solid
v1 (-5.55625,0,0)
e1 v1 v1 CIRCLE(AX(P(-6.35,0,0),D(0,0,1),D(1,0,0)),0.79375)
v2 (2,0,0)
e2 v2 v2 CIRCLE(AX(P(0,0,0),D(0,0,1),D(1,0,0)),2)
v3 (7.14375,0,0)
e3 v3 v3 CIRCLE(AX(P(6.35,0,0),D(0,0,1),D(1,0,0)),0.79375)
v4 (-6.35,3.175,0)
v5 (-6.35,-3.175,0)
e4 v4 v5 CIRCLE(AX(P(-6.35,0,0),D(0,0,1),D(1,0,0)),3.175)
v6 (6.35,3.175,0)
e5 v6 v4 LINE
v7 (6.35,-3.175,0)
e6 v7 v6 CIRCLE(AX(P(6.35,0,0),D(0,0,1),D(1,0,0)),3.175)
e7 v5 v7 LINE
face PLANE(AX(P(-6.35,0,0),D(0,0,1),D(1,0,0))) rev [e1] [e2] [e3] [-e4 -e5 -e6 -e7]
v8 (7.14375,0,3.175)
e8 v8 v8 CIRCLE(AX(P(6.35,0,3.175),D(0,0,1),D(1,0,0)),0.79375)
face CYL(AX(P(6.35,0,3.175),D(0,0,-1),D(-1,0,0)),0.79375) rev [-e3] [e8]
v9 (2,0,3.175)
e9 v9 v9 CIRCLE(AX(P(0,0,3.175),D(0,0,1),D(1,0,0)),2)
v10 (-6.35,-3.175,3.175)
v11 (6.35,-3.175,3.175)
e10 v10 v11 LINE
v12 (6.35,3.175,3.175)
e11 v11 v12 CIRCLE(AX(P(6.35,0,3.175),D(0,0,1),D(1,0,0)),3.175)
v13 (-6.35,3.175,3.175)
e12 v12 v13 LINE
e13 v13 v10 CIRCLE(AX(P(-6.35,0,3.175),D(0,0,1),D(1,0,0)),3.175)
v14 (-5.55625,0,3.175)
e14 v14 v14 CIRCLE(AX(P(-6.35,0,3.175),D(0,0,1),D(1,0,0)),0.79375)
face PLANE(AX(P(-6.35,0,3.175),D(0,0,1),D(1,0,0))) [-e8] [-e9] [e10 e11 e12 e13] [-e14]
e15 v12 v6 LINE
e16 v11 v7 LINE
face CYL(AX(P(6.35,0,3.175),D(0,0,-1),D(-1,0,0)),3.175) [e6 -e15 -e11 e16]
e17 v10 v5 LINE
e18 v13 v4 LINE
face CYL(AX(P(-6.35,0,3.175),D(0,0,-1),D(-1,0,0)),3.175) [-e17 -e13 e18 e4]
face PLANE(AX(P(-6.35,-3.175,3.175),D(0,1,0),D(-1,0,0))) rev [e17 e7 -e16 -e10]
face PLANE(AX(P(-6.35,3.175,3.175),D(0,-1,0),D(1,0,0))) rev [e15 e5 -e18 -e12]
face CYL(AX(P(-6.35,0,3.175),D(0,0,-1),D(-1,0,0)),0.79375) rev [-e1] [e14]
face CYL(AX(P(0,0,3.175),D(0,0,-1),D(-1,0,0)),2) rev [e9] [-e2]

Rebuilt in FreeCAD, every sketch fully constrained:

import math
import FreeCAD as App
import Part
import Sketcher

V = App.Vector
Q = App.Units.Quantity

doc = App.newDocument("Part")
body = doc.addObject("PartDesign::Body", "Body")

# Sketch on XY plane
sketch1 = body.newObject("Sketcher::SketchObject", "Sketch")
sketch1.AttachmentSupport = (doc.getObject("XY_Plane"), [""])
sketch1.MapMode = "FlatFace"
sketch1.addGeometry(Part.LineSegment(V(6.3, 3.2, 0), V(-6.3, 3.2, 0)), False)
sketch1.addGeometry(Part.ArcOfCircle(Part.Circle(V(-6.3, 0, 0), V(0, 0, 1), 3.2), math.radians(90), math.radians(270)), False)
sketch1.addGeometry(Part.LineSegment(V(-6.3, -3.2, 0), V(6.3, -3.2, 0)), False)
sketch1.addGeometry(Part.ArcOfCircle(Part.Circle(V(6.3, 0, 0), V(0, 0, 1), 3.2), math.radians(-90), math.radians(90)), False)
sketch1.addGeometry(Part.Circle(V(6.3, 0, 0), V(0, 0, 1), 0.8), False)
sketch1.addGeometry(Part.Circle(V(0, 0, 0), V(0, 0, 1), 2), False)
sketch1.addGeometry(Part.Circle(V(-6.3, 0, 0), V(0, 0, 1), 0.8), False)
sketch1.addConstraint(Sketcher.Constraint("Tangent", 0, 2, 1, 1))
sketch1.addConstraint(Sketcher.Constraint("Tangent", 1, 2, 2, 1))
sketch1.addConstraint(Sketcher.Constraint("Tangent", 2, 2, 3, 1))
sketch1.addConstraint(Sketcher.Constraint("Tangent", 3, 2, 0, 1))
sketch1.addConstraint(Sketcher.Constraint("Horizontal", 0))
sketch1.addConstraint(Sketcher.Constraint("Horizontal", 2))
sketch1.addConstraint(Sketcher.Constraint("Coincident", 5, 3, -1, 1))
sketch1.addConstraint(Sketcher.Constraint("Coincident", 4, 3, 3, 3))
sketch1.addConstraint(Sketcher.Constraint("Coincident", 6, 3, 1, 3))
sketch1.addConstraint(Sketcher.Constraint("Equal", 4, 6))
sketch1.addConstraint(Sketcher.Constraint("Symmetric", 1, 3, 3, 3, -1, 1))
sketch1.addConstraint(Sketcher.Constraint("Diameter", 4, Q("0.0625 in")))
sketch1.addConstraint(Sketcher.Constraint("DistanceX", 0, 2, 0, 1, Q("0.5 in")))
sketch1.addConstraint(Sketcher.Constraint("Radius", 1, Q("0.125 in")))
sketch1.addConstraint(Sketcher.Constraint("Diameter", 5, 4.0))
pad1 = body.newObject("PartDesign::Pad", "Pad")
pad1.Profile = sketch1
pad1.Length = Q("0.125 in")

doc.recompute()
